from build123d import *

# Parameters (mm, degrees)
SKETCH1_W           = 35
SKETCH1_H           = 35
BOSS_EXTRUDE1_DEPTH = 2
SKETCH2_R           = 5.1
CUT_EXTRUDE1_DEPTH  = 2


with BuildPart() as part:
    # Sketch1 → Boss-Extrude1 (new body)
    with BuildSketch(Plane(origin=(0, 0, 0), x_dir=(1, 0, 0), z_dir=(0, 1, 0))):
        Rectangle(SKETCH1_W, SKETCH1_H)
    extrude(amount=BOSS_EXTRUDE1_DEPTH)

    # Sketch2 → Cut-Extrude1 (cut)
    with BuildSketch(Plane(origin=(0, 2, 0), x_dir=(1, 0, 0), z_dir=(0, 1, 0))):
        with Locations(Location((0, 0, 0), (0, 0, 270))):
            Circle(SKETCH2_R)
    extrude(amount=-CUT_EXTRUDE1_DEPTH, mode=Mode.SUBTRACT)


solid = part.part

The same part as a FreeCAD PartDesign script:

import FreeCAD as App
import Part
import Sketcher

V = App.Vector

doc = App.newDocument("Part")
params = doc.addObject("Spreadsheet::Sheet", "Params")
for row, (alias, value) in enumerate([
    ("sketch1_width", "35 mm"),
    ("pad1_length", "2 mm"),
    ("sketch2_diameter", "10.2 mm"),
    ("pocket1_length", "2 mm"),
], start=1):
    params.set(f"A{row}", alias)
    params.set(f"B{row}", "=" + value)
    params.setAlias(f"B{row}", alias)

body = doc.addObject("PartDesign::Body", "Body")

# Sketch on XZ plane
sketch1 = body.newObject("Sketcher::SketchObject", "Sketch")
sketch1.AttachmentSupport = (doc.getObject("XZ_Plane"), [""])
sketch1.MapMode = "FlatFace"
sketch1.addGeometry(Part.LineSegment(V(-18, -18, 0), V(-18, 18, 0)), False)
sketch1.addGeometry(Part.LineSegment(V(-18, 18, 0), V(18, 18, 0)), False)
sketch1.addGeometry(Part.LineSegment(V(18, 18, 0), V(18, -18, 0)), False)
sketch1.addGeometry(Part.LineSegment(V(18, -18, 0), V(-18, -18, 0)), False)
sketch1.addConstraint(Sketcher.Constraint("Coincident", 0, 2, 1, 1))
sketch1.addConstraint(Sketcher.Constraint("Coincident", 1, 2, 2, 1))
sketch1.addConstraint(Sketcher.Constraint("Coincident", 2, 2, 3, 1))
sketch1.addConstraint(Sketcher.Constraint("Coincident", 3, 2, 0, 1))
sketch1.addConstraint(Sketcher.Constraint("Vertical", 0))
sketch1.addConstraint(Sketcher.Constraint("Horizontal", 1))
sketch1.addConstraint(Sketcher.Constraint("Vertical", 2))
sketch1.addConstraint(Sketcher.Constraint("Horizontal", 3))
sketch1.addConstraint(Sketcher.Constraint("Symmetric", 0, 2, 2, 2, -1, 1))
sketch1.addConstraint(Sketcher.Constraint("Equal", 3, 0))
sketch1.addConstraint(Sketcher.Constraint("DistanceX", 1, 1, 1, 2, 35.0))
sketch1.setExpression("Constraints[10]", "Params.sketch1_width")
pad1 = body.newObject("PartDesign::Pad", "Pad")
pad1.Profile = sketch1
pad1.setExpression("Length", "Params.pad1_length")
pad1.Reversed = True

# Sketch on XZ plane
sketch2 = body.newObject("Sketcher::SketchObject", "Sketch001")
sketch2.AttachmentSupport = (doc.getObject("XZ_Plane"), [""])
sketch2.MapMode = "FlatFace"
sketch2.AttachmentOffset = App.Placement(V(0, 0, -2), App.Rotation())
sketch2.addGeometry(Part.Circle(V(0, 0, 0), V(0, 0, 1), 5), False)
sketch2.addConstraint(Sketcher.Constraint("Coincident", 0, 3, -1, 1))
sketch2.addConstraint(Sketcher.Constraint("Diameter", 0, 10.2))
sketch2.setExpression("Constraints[1]", "Params.sketch2_diameter")
pocket1 = body.newObject("PartDesign::Pocket", "Pocket")
pocket1.Profile = sketch2
pocket1.setExpression("Length", "Params.pocket1_length")
pocket1.Reversed = True

doc.recompute()
